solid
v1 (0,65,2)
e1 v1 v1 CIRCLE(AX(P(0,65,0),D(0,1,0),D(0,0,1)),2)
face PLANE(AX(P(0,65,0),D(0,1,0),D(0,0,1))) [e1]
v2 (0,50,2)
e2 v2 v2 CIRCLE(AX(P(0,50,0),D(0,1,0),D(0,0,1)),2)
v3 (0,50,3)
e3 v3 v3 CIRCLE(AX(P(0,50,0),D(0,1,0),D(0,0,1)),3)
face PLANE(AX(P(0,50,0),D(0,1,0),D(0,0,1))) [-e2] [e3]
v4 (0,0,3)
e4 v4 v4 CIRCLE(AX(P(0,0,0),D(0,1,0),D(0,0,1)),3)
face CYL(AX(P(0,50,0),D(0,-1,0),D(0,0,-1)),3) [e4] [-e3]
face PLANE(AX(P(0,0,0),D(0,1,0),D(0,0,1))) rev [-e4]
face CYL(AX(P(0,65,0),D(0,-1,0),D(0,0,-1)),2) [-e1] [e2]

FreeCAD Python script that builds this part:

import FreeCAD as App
import Part
import Sketcher
from FreeCAD import Vector

doc = App.newDocument("Part")
params = doc.addObject("Spreadsheet::Sheet", "Params")
for row, (alias, value) in enumerate([
    ("sketch1_diameter", "6 mm"),
    ("pad1_length", "50 mm"),
    ("sketch2_diameter", "4 mm"),
    ("pad2_length", "15 mm"),
], start=1):
    params.set(f"A{row}", alias)
    params.set(f"B{row}", "=" + value)
    params.setAlias(f"B{row}", alias)

body = doc.addObject("PartDesign::Body", "Body")

# Sketch on XZ plane
sketch1 = doc.addObject("Sketcher::SketchObject", "Sketch")
body.addObject(sketch1)
sketch1.AttachmentSupport = (doc.XZ_Plane, [""])
sketch1.MapMode = "FlatFace"
sketch1.addGeometry(Part.Circle(Vector(0, 0, 0), Vector(0, 0, 1), 3), False)
sketch1.addConstraint([
    Sketcher.Constraint("Coincident", 0, 3, -1, 1),
    Sketcher.Constraint("Diameter", 0, 6.0),
])
sketch1.setExpression("Constraints[1]", "Params.sketch1_diameter")
pad1 = doc.addObject("PartDesign::Pad", "Pad")
body.addObject(pad1)
pad1.Profile = sketch1
pad1.setExpression("Length", "Params.pad1_length")
pad1.Reversed = True

# Sketch on XZ plane
sketch2 = doc.addObject("Sketcher::SketchObject", "Sketch001")
body.addObject(sketch2)
sketch2.AttachmentSupport = (doc.XZ_Plane, [""])
sketch2.MapMode = "FlatFace"
sketch2.AttachmentOffset = App.Placement(Vector(0, 0, -50), App.Rotation())
sketch2.addGeometry(Part.Circle(Vector(0, 0, 0), Vector(0, 0, 1), 2), False)
sketch2.addConstraint([
    Sketcher.Constraint("Coincident", 0, 3, -1, 1),
    Sketcher.Constraint("Diameter", 0, 4.0),
])
sketch2.setExpression("Constraints[1]", "Params.sketch2_diameter")
pad2 = doc.addObject("PartDesign::Pad", "Pad001")
body.addObject(pad2)
pad2.Profile = sketch2
pad2.setExpression("Length", "Params.pad2_length")
pad2.Reversed = True

doc.recompute()
